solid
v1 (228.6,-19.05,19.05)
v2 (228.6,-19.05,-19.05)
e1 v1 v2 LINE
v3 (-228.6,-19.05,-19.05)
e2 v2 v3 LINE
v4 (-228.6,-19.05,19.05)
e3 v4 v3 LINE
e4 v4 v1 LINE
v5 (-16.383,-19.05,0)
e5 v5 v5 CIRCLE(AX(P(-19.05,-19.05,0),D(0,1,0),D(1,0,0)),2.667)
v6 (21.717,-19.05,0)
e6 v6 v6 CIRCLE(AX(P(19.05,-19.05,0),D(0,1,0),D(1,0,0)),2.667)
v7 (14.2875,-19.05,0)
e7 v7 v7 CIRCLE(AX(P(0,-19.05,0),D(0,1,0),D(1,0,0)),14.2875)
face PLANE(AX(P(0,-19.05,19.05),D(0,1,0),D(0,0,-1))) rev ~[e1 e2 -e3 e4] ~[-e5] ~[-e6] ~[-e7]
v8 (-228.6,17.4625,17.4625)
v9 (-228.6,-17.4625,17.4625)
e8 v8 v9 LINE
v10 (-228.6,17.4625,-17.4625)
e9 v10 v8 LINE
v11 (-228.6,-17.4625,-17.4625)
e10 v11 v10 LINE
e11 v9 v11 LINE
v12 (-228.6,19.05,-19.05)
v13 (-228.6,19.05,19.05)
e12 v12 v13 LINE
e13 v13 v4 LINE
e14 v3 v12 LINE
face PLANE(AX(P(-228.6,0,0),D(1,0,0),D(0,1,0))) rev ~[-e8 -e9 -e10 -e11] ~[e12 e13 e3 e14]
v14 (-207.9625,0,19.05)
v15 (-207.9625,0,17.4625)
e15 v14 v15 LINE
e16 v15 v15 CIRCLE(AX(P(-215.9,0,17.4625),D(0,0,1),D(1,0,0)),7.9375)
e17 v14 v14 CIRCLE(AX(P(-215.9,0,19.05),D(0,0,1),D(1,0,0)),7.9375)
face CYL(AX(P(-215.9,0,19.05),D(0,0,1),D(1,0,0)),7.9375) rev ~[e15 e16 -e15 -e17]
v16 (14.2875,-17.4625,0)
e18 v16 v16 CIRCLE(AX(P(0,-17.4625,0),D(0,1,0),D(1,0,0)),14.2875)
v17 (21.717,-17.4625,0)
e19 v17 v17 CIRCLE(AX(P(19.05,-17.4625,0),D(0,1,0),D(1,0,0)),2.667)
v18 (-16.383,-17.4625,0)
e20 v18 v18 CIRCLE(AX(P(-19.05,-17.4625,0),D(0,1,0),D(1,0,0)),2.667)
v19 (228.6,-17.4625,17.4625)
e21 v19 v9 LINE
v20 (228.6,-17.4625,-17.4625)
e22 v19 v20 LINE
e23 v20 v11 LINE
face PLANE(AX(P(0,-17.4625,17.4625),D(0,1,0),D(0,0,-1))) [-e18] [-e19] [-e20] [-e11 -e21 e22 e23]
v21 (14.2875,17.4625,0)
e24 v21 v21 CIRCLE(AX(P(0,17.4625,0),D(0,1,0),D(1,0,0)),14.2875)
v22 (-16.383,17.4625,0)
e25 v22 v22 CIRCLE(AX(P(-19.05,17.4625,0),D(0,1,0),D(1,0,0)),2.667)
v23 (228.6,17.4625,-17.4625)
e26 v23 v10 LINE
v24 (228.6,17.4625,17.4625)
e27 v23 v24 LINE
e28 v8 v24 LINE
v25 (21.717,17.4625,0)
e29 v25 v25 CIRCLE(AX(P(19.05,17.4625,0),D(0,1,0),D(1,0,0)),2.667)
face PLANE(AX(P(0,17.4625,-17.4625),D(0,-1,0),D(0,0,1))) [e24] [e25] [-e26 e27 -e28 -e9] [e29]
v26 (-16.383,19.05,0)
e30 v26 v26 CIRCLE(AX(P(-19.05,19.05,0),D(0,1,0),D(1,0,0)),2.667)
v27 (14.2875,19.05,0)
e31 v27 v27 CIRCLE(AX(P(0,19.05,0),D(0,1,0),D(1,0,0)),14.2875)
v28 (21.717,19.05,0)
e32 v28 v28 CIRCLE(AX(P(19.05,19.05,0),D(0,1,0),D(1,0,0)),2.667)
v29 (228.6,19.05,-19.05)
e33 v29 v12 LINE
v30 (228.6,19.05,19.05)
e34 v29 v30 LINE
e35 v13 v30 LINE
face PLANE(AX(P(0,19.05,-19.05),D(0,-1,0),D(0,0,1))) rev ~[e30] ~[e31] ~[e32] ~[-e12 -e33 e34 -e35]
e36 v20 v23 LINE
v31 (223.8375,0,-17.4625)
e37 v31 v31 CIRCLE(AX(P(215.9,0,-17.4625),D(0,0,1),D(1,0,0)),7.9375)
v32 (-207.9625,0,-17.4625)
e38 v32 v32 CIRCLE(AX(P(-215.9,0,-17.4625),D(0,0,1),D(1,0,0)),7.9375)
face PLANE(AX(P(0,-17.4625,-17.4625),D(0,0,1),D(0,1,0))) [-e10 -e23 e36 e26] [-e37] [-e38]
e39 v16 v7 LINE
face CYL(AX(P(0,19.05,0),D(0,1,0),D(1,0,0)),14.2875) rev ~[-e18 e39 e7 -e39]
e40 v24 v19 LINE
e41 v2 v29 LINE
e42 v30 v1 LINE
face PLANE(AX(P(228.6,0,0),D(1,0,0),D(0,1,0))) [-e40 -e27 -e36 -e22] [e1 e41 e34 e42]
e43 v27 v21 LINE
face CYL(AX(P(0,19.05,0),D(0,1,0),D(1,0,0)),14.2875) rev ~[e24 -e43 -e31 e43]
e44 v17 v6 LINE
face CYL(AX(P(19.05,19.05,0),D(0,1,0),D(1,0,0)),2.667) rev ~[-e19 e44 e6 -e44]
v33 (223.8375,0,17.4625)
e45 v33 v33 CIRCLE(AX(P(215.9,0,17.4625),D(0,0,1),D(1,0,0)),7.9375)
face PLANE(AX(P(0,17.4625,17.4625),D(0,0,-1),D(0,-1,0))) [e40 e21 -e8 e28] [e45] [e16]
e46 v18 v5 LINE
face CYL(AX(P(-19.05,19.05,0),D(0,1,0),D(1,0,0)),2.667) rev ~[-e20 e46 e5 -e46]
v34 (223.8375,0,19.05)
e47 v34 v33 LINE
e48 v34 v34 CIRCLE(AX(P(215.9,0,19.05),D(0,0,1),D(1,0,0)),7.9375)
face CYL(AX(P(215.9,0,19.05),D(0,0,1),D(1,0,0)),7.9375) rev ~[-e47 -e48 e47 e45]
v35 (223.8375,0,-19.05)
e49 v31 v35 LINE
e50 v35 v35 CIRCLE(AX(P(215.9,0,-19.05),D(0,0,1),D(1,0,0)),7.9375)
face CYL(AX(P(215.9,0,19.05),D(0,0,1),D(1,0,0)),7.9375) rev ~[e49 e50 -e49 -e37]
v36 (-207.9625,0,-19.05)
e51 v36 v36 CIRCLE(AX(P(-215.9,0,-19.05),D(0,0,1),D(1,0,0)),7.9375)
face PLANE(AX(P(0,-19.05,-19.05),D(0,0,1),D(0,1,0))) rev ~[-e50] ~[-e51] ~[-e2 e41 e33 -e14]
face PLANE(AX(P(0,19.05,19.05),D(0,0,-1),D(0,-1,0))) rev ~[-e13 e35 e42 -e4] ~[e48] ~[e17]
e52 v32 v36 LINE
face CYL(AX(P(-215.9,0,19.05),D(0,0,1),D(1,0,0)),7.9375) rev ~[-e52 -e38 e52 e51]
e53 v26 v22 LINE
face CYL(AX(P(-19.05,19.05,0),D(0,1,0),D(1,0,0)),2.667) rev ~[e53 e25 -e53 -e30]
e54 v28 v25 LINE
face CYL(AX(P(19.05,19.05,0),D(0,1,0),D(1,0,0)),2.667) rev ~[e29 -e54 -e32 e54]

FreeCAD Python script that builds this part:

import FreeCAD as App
import Part
import Sketcher

V = App.Vector
Q = App.Units.Quantity


def add_polygon(sketch, points):
    """Adds a closed chain of lines whose ends are joined by coincident constraints."""
    first, n = sketch.GeometryCount, len(points)
    for a, b in zip(points, points[1:] + points[:1]):
        sketch.addGeometry(Part.LineSegment(App.Vector(*a, 0), App.Vector(*b, 0)), False)
    for i in range(n):
        sketch.addConstraint(Sketcher.Constraint("Coincident", first + i, 2, first + (i + 1) % n, 1))

doc = App.newDocument("Part")
body = doc.addObject("PartDesign::Body", "Body")

# Sketch on YZ plane
sketch1 = doc.addObject("Sketcher::SketchObject", "Sketch")
body.addObject(sketch1)
sketch1.AttachmentSupport = (doc.YZ_Plane, [""])
sketch1.MapMode = "FlatFace"
add_polygon(sketch1, [(19, -19), (19, 19), (-19, 19), (-19, -19)])  # lines 0-3
add_polygon(sketch1, [(-17, 17), (17, 17), (17, -17), (-17, -17)])  # lines 4-7
sketch1.addConstraint(Sketcher.Constraint("Vertical", 0))
sketch1.addConstraint(Sketcher.Constraint("Horizontal", 1))
sketch1.addConstraint(Sketcher.Constraint("Vertical", 2))
sketch1.addConstraint(Sketcher.Constraint("Horizontal", 3))
sketch1.addConstraint(Sketcher.Constraint("Horizontal", 4))
sketch1.addConstraint(Sketcher.Constraint("Vertical", 5))
sketch1.addConstraint(Sketcher.Constraint("Horizontal", 6))
sketch1.addConstraint(Sketcher.Constraint("Vertical", 7))
sketch1.addConstraint(Sketcher.Constraint("Symmetric", 0, 2, 2, 2, -1, 1))
sketch1.addConstraint(Sketcher.Constraint("Symmetric", 4, 2, 6, 2, -1, 1))
sketch1.addConstraint(Sketcher.Constraint("Equal", 3, 0))
sketch1.addConstraint(Sketcher.Constraint("Equal", 6, 5))
sketch1.addConstraint(Sketcher.Constraint("DistanceX", 1, 2, 1, 1, Q("1.5 in")))
sketch1.addConstraint(Sketcher.Constraint("DistanceX", 4, 2, 0, 2, Q("0.0625 in")))
pad1 = doc.addObject("PartDesign::Pad", "Pad")
body.addObject(pad1)
pad1.Profile = sketch1
pad1.Length = Q("18 in")
pad1.Midplane = True

# Sketch on XY plane
sketch2 = doc.addObject("Sketcher::SketchObject", "Sketch001")
body.addObject(sketch2)
sketch2.AttachmentSupport = (doc.XY_Plane, [""])
sketch2.MapMode = "FlatFace"
sketch2.AttachmentOffset = App.Placement(V(0, 0, 0.75 * 25.4), App.Rotation())
sketch2.addGeometry(Part.Circle(V(-216, 0, 0), V(0, 0, 1), 8), False)
sketch2.addGeometry(Part.Circle(V(216, 0, 0), V(0, 0, 1), 8), False)
sketch2.addConstraint(Sketcher.Constraint("Equal", 0, 1))
sketch2.addConstraint(Sketcher.Constraint("Symmetric", 0, 3, 1, 3, -1, 1))
sketch2.addConstraint(Sketcher.Constraint("PointOnObject", 0, 3, -1))
sketch2.addConstraint(Sketcher.Constraint("Diameter", 0, Q("0.625 in")))
sketch2.addConstraint(Sketcher.Constraint("DistanceX", 0, 3, 1, 3, Q("17 in")))
pocket1 = doc.addObject("PartDesign::Pocket", "Pocket")
body.addObject(pocket1)
pocket1.Profile = sketch2
pocket1.Type = "ThroughAll"

# Sketch on XZ plane
sketch3 = doc.addObject("Sketcher::SketchObject", "Sketch002")
body.addObject(sketch3)
sketch3.AttachmentSupport = (doc.XZ_Plane, [""])
sketch3.MapMode = "FlatFace"
sketch3.AttachmentOffset = App.Placement(V(0, 0, -0.75 * 25.4), App.Rotation())
sketch3.addGeometry(Part.Circle(V(0, 0, 0), V(0, 0, 1), 14), False)
sketch3.addConstraint(Sketcher.Constraint("Coincident", 0, 3, -1, 1))
sketch3.addConstraint(Sketcher.Constraint("Diameter", 0, Q("1.125 in")))
pocket2 = doc.addObject("PartDesign::Pocket", "Pocket001")
body.addObject(pocket2)
pocket2.Profile = sketch3
pocket2.Type = "ThroughAll"
pocket2.Reversed = True

# Sketch on XZ plane
sketch4 = doc.addObject("Sketcher::SketchObject", "Sketch003")
body.addObject(sketch4)
sketch4.AttachmentSupport = (doc.XZ_Plane, [""])
sketch4.MapMode = "FlatFace"
sketch4.AttachmentOffset = App.Placement(V(0, 0, -0.75 * 25.4), App.Rotation())
sketch4.addGeometry(Part.Circle(V(-19.1, 0, 0), V(0, 0, 1), 2.7), False)
sketch4.addGeometry(Part.Circle(V(19.1, 0, 0), V(0, 0, 1), 2.7), False)
sketch4.addConstraint(Sketcher.Constraint("Equal", 0, 1))
sketch4.addConstraint(Sketcher.Constraint("Symmetric", 0, 3, 1, 3, -1, 1))
sketch4.addConstraint(Sketcher.Constraint("PointOnObject", 0, 3, -1))
sketch4.addConstraint(Sketcher.Constraint("Diameter", 0, Q("0.21 in")))
sketch4.addConstraint(Sketcher.Constraint("DistanceX", 0, 3, 1, 3, Q("1.5 in")))
pocket3 = doc.addObject("PartDesign::Pocket", "Pocket002")
body.addObject(pocket3)
pocket3.Profile = sketch4
pocket3.Type = "ThroughAll"
pocket3.Reversed = True

doc.recompute()
